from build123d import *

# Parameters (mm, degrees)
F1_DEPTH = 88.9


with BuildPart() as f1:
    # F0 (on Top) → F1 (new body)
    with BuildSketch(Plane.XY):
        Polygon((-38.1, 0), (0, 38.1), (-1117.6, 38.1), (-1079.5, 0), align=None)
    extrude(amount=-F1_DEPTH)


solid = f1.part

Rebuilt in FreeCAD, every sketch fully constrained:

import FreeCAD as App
import Part
import Sketcher
Q = App.Units.Quantity

doc = App.newDocument("Part")
body = doc.addObject("PartDesign::Body", "Body")

sketch1 = body.newObject("Sketcher::SketchObject", "Sketch")
sketch1.AttachmentSupport = (doc.getObject("XY_Plane"), [""])
sketch1.MapMode = "FlatFace"
sketch1.addGeometry([
    Part.LineSegment(App.Vector(-38, 0, 0), App.Vector(0, 38, 0)),
    Part.LineSegment(App.Vector(0, 38, 0), App.Vector(-1118, 38, 0)),
    Part.LineSegment(App.Vector(-1118, 38, 0), App.Vector(-1080, 0, 0)),
    Part.LineSegment(App.Vector(-1080, 0, 0), App.Vector(-38, 0, 0)),
], False)
sketch1.addConstraint([
    Sketcher.Constraint("Coincident", 0, 2, 1, 1),
    Sketcher.Constraint("Coincident", 1, 2, 2, 1),
    Sketcher.Constraint("Coincident", 2, 2, 3, 1),
    Sketcher.Constraint("Coincident", 3, 2, 0, 1),
    Sketcher.Constraint("Horizontal", 1),
    Sketcher.Constraint("Horizontal", 3),
    Sketcher.Constraint("PointOnObject", 0, 2, -2),
    Sketcher.Constraint("PointOnObject", 2, 2, -1),
    Sketcher.Constraint("Perpendicular", 0, 2),
    Sketcher.Constraint("Equal", 0, 2),
    Sketcher.Constraint("DistanceX", 1, 2, 1, 1, Q("44 in")),
    Sketcher.Constraint("DistanceX", 3, 1, 3, 2, Q("41 in")),
])
pad1 = body.newObject("PartDesign::Pad", "Pad")
pad1.Profile = sketch1
pad1.Length = Q("3.5 in")
pad1.Reversed = True

doc.recompute()
